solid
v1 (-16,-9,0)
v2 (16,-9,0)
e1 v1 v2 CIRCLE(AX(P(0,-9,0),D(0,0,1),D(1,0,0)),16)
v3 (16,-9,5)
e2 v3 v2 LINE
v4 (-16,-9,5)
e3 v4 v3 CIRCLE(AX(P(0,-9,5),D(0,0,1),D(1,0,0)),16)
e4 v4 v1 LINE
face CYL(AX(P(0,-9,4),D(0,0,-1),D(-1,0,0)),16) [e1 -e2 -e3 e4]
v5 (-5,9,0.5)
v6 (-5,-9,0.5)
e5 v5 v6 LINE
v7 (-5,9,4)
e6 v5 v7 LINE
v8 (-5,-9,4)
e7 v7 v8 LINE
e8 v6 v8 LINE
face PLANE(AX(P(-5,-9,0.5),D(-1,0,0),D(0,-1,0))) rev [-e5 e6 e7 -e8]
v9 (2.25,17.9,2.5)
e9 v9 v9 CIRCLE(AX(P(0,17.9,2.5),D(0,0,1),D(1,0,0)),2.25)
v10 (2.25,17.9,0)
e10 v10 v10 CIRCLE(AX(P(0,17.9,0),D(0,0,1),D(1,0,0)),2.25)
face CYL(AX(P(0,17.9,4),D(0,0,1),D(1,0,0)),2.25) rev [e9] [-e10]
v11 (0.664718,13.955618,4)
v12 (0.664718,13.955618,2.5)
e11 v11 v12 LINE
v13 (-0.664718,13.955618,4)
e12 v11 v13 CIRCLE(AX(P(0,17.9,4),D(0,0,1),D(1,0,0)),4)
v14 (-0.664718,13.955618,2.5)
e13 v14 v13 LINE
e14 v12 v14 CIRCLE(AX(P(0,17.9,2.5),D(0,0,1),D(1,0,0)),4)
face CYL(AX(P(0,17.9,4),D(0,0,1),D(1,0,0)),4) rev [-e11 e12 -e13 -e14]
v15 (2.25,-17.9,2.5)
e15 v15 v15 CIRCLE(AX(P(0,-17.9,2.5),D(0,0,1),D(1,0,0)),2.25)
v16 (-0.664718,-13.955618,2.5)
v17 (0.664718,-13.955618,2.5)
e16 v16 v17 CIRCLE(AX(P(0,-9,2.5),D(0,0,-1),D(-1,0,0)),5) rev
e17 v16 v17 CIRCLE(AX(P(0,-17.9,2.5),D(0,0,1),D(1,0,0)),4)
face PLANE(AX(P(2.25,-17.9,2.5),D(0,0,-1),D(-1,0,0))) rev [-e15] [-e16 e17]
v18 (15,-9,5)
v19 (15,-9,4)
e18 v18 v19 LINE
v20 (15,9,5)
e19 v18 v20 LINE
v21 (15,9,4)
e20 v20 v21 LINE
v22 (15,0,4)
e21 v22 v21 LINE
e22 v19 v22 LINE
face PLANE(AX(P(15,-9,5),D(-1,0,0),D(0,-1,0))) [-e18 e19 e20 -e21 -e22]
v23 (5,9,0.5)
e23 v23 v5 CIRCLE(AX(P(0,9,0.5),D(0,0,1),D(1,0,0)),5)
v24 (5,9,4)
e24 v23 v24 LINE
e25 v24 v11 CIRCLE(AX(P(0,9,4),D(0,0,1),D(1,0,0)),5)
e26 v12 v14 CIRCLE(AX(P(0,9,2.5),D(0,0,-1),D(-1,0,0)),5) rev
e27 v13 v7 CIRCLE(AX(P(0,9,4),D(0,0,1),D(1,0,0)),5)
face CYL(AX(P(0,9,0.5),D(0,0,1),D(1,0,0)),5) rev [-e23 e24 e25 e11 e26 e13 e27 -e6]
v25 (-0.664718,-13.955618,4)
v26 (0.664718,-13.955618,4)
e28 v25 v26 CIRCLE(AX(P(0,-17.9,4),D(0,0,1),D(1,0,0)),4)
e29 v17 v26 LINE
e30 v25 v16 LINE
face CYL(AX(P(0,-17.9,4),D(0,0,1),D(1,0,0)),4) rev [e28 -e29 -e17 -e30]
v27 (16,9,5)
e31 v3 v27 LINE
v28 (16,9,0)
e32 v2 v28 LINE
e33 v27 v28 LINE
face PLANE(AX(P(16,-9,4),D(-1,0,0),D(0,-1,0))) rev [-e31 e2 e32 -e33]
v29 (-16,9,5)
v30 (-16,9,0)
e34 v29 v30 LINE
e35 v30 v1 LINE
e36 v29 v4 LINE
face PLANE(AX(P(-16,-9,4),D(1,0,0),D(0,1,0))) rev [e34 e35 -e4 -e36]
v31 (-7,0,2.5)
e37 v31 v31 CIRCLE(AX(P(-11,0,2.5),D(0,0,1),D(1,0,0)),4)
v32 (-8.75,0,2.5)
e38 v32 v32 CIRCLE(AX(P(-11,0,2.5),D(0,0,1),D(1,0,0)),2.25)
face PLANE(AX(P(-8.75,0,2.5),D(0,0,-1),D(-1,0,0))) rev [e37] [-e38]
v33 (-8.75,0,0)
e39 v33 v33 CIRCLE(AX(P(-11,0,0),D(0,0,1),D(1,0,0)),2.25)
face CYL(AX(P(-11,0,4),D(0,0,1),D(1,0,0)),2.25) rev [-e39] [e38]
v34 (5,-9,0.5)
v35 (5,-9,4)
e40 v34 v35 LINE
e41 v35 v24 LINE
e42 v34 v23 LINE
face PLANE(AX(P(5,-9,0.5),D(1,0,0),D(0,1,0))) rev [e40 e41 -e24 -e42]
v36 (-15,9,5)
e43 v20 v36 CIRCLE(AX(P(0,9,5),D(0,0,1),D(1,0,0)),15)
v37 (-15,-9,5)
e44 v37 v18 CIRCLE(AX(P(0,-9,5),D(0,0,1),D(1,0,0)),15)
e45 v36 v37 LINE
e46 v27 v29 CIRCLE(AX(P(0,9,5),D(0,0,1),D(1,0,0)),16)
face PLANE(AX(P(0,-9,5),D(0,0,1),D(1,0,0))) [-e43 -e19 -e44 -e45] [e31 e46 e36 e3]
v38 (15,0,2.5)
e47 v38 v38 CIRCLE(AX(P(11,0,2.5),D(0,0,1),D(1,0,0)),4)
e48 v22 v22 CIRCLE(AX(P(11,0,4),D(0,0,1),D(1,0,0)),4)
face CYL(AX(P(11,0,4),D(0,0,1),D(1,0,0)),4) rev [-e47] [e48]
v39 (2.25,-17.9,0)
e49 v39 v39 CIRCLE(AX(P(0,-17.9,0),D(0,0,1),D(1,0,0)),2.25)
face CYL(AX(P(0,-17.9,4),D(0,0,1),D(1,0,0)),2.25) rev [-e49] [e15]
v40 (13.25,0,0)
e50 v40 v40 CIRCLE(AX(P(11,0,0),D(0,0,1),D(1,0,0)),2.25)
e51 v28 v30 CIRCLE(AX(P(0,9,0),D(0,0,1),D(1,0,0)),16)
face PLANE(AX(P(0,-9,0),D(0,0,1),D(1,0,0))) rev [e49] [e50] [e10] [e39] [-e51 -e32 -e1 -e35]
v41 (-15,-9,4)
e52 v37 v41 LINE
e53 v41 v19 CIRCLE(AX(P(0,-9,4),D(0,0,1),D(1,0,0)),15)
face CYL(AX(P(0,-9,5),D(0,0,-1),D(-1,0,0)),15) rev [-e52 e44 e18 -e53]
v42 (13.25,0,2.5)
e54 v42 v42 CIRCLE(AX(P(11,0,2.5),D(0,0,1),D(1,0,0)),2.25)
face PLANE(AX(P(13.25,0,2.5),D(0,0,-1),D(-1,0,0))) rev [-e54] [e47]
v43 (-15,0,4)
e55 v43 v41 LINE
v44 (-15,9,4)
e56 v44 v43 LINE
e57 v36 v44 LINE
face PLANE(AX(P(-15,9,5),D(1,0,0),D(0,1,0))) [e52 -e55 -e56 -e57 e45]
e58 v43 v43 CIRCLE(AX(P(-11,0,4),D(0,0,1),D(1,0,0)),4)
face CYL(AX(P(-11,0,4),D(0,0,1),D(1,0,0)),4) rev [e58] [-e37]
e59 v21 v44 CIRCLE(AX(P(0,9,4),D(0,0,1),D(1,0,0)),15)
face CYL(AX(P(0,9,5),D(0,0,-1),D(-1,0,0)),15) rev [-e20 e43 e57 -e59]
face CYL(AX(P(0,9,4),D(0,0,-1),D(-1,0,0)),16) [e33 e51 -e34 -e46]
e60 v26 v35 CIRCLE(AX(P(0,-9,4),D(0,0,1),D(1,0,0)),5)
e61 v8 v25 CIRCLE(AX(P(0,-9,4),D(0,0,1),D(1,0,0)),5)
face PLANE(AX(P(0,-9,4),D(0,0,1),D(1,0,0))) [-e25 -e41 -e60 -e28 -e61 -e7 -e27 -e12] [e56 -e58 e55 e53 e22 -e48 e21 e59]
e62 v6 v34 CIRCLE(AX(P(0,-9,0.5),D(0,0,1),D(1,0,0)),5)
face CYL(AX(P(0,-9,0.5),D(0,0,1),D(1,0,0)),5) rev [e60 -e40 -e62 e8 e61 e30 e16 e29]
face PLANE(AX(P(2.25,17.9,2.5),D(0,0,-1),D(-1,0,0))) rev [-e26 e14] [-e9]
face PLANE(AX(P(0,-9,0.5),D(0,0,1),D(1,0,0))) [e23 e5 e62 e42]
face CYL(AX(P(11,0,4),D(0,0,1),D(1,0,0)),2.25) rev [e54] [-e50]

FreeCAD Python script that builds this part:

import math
import FreeCAD as App
import Part
import Sketcher
Q = App.Units.Quantity

doc = App.newDocument("Part")
body = doc.addObject("PartDesign::Body", "Body")

# Sketch on XY plane
sketch1 = body.newObject("Sketcher::SketchObject", "Sketch")
sketch1.AttachmentSupport = (doc.getObject("XY_Plane"), [""])
sketch1.MapMode = "FlatFace"
sketch1.addGeometry([
    Part.LineSegment(App.Vector(-16, 9, 0), App.Vector(-16, -9, 0)),
    Part.ArcOfCircle(Part.Circle(App.Vector(0, -9, 0), App.Vector(0, 0, 1), 16), math.radians(180), math.radians(360)),
    Part.LineSegment(App.Vector(16, -9, 0), App.Vector(16, 9, 0)),
    Part.ArcOfCircle(Part.Circle(App.Vector(0, 9, 0), App.Vector(0, 0, 1), 16), math.radians(0), math.radians(180)),
], False)
sketch1.addConstraint([
    Sketcher.Constraint("Tangent", 0, 2, 1, 1),
    Sketcher.Constraint("Tangent", 1, 2, 2, 1),
    Sketcher.Constraint("Tangent", 2, 2, 3, 1),
    Sketcher.Constraint("Tangent", 3, 2, 0, 1),
    Sketcher.Constraint("Vertical", 0),
    Sketcher.Constraint("Vertical", 2),
    Sketcher.Constraint("Symmetric", 1, 3, 3, 3, -1, 1),
    Sketcher.Constraint("Radius", 1, Q("16 mm")),
    Sketcher.Constraint("DistanceY", 0, 2, 0, 1, Q("18 mm")),
])
pad1 = body.newObject("PartDesign::Pad", "Pad")
pad1.Profile = sketch1
pad1.Length = 4

# Sketch on XY plane
sketch2 = body.newObject("Sketcher::SketchObject", "Sketch001")
sketch2.AttachmentSupport = (doc.getObject("XY_Plane"), [""])
sketch2.MapMode = "FlatFace"
sketch2.AttachmentOffset = App.Placement(App.Vector(0, 0, 4), App.Rotation())
sketch2.addGeometry([
    Part.LineSegment(App.Vector(-5, 9, 0), App.Vector(-5, -9, 0)),
    Part.ArcOfCircle(Part.Circle(App.Vector(0, -9, 0), App.Vector(0, 0, 1), 5), math.radians(180), math.radians(360)),
    Part.LineSegment(App.Vector(5, -9, 0), App.Vector(5, 9, 0)),
    Part.ArcOfCircle(Part.Circle(App.Vector(0, 9, 0), App.Vector(0, 0, 1), 5), math.radians(0), math.radians(180)),
], False)
sketch2.addConstraint([
    Sketcher.Constraint("Tangent", 0, 2, 1, 1),
    Sketcher.Constraint("Tangent", 1, 2, 2, 1),
    Sketcher.Constraint("Tangent", 2, 2, 3, 1),
    Sketcher.Constraint("Tangent", 3, 2, 0, 1),
    Sketcher.Constraint("Vertical", 0),
    Sketcher.Constraint("Vertical", 2),
    Sketcher.Constraint("Symmetric", 1, 3, 3, 3, -1, 1),
    Sketcher.Constraint("Radius", 1, Q("5 mm")),
    Sketcher.Constraint("DistanceY", 0, 2, 0, 1, Q("18 mm")),
])
pocket1 = body.newObject("PartDesign::Pocket", "Pocket")
pocket1.Profile = sketch2
pocket1.Length = 3.5

# Sketch on XY plane
sketch3 = body.newObject("Sketcher::SketchObject", "Sketch002")
sketch3.AttachmentSupport = (doc.getObject("XY_Plane"), [""])
sketch3.MapMode = "FlatFace"
sketch3.AttachmentOffset = App.Placement(App.Vector(0, 0, 4), App.Rotation())
sketch3.addGeometry([
    Part.LineSegment(App.Vector(16, -9, 0), App.Vector(16, 9, 0)),  # 0
    Part.ArcOfCircle(Part.Circle(App.Vector(0, 9, 0), App.Vector(0, 0, 1), 16), math.radians(0), math.radians(180)),  # 1
    Part.LineSegment(App.Vector(-16, 9, 0), App.Vector(-16, -9, 0)),  # 2
    Part.ArcOfCircle(Part.Circle(App.Vector(0, -9, 0), App.Vector(0, 0, 1), 16), math.radians(180), math.radians(360)),  # 3
    Part.LineSegment(App.Vector(-15, -9, 0), App.Vector(-15, 9, 0)),  # 4
    Part.ArcOfCircle(Part.Circle(App.Vector(0, 9, 0), App.Vector(0, 0, 1), 15), math.radians(0), math.radians(180)),  # 5
    Part.LineSegment(App.Vector(15, 9, 0), App.Vector(15, -9, 0)),  # 6
    Part.ArcOfCircle(Part.Circle(App.Vector(0, -9, 0), App.Vector(0, 0, 1), 15), math.radians(180), math.radians(360)),  # 7
], False)
sketch3.addConstraint([
    Sketcher.Constraint("Tangent", 0, 2, 1, 1),
    Sketcher.Constraint("Tangent", 1, 2, 2, 1),
    Sketcher.Constraint("Tangent", 2, 2, 3, 1),
    Sketcher.Constraint("Tangent", 3, 2, 0, 1),
    Sketcher.Constraint("Tangent", 4, 2, 5, 2),
    Sketcher.Constraint("Tangent", 5, 1, 6, 1),
    Sketcher.Constraint("Tangent", 6, 2, 7, 2),
    Sketcher.Constraint("Tangent", 7, 1, 4, 1),
    Sketcher.Constraint("Vertical", 0),
    Sketcher.Constraint("Vertical", 2),
    Sketcher.Constraint("Vertical", 4),
    Sketcher.Constraint("Vertical", 6),
    Sketcher.Constraint("Coincident", 5, 3, 1, 3),
    Sketcher.Constraint("Symmetric", 1, 3, 3, 3, -1, 1),
    Sketcher.Constraint("Horizontal", 7, 3, 2, 2),
    Sketcher.Constraint("Radius", 1, Q("16 mm")),
    Sketcher.Constraint("Radius", 5, Q("15 mm")),
    Sketcher.Constraint("DistanceY", 0, 1, 0, 2, Q("18 mm")),
])
pad2 = body.newObject("PartDesign::Pad", "Pad001")
pad2.Profile = sketch3
pad2.Length = 1

# Sketch on XY plane
sketch4 = body.newObject("Sketcher::SketchObject", "Sketch003")
sketch4.AttachmentSupport = (doc.getObject("XY_Plane"), [""])
sketch4.MapMode = "FlatFace"
sketch4.AttachmentOffset = App.Placement(App.Vector(0, 0, 4), App.Rotation())
sketch4.addGeometry([
    Part.Circle(App.Vector(0, 17.9, 0), App.Vector(0, 0, 1), 2.25),
    Part.Circle(App.Vector(11, 0, 0), App.Vector(0, 0, 1), 2.25),
    Part.Circle(App.Vector(-11, 0, 0), App.Vector(0, 0, 1), 2.25),
    Part.Circle(App.Vector(0, -17.9, 0), App.Vector(0, 0, 1), 2.25),
], False)
sketch4.addConstraint([
    Sketcher.Constraint("Equal", 0, 1),
    Sketcher.Constraint("Equal", 1, 2),
    Sketcher.Constraint("Equal", 2, 3),
    Sketcher.Constraint("Symmetric", 1, 3, 2, 3, -1, 1),
    Sketcher.Constraint("Symmetric", 0, 3, 3, 3, -1, 1),
    Sketcher.Constraint("PointOnObject", 0, 3, -2),
    Sketcher.Constraint("PointOnObject", 1, 3, -1),
    Sketcher.Constraint("Diameter", 0, Q("4.5 mm")),
    Sketcher.Constraint("DistanceX", -1, 1, 1, 3, Q("11 mm")),
    Sketcher.Constraint("DistanceY", -1, 1, 0, 3, Q("17.9 mm")),
])
doc.recompute()
hole = body.newObject("PartDesign::Hole", "Hole")
hole.Profile = sketch4
hole.ThreadType = "None"
hole.Diameter = 4.5
hole.DepthType = "ThroughAll"
hole.HoleCutType = "Counterbore"
hole.HoleCutDiameter = 8
hole.HoleCutDepth = 1.5

doc.recompute()
